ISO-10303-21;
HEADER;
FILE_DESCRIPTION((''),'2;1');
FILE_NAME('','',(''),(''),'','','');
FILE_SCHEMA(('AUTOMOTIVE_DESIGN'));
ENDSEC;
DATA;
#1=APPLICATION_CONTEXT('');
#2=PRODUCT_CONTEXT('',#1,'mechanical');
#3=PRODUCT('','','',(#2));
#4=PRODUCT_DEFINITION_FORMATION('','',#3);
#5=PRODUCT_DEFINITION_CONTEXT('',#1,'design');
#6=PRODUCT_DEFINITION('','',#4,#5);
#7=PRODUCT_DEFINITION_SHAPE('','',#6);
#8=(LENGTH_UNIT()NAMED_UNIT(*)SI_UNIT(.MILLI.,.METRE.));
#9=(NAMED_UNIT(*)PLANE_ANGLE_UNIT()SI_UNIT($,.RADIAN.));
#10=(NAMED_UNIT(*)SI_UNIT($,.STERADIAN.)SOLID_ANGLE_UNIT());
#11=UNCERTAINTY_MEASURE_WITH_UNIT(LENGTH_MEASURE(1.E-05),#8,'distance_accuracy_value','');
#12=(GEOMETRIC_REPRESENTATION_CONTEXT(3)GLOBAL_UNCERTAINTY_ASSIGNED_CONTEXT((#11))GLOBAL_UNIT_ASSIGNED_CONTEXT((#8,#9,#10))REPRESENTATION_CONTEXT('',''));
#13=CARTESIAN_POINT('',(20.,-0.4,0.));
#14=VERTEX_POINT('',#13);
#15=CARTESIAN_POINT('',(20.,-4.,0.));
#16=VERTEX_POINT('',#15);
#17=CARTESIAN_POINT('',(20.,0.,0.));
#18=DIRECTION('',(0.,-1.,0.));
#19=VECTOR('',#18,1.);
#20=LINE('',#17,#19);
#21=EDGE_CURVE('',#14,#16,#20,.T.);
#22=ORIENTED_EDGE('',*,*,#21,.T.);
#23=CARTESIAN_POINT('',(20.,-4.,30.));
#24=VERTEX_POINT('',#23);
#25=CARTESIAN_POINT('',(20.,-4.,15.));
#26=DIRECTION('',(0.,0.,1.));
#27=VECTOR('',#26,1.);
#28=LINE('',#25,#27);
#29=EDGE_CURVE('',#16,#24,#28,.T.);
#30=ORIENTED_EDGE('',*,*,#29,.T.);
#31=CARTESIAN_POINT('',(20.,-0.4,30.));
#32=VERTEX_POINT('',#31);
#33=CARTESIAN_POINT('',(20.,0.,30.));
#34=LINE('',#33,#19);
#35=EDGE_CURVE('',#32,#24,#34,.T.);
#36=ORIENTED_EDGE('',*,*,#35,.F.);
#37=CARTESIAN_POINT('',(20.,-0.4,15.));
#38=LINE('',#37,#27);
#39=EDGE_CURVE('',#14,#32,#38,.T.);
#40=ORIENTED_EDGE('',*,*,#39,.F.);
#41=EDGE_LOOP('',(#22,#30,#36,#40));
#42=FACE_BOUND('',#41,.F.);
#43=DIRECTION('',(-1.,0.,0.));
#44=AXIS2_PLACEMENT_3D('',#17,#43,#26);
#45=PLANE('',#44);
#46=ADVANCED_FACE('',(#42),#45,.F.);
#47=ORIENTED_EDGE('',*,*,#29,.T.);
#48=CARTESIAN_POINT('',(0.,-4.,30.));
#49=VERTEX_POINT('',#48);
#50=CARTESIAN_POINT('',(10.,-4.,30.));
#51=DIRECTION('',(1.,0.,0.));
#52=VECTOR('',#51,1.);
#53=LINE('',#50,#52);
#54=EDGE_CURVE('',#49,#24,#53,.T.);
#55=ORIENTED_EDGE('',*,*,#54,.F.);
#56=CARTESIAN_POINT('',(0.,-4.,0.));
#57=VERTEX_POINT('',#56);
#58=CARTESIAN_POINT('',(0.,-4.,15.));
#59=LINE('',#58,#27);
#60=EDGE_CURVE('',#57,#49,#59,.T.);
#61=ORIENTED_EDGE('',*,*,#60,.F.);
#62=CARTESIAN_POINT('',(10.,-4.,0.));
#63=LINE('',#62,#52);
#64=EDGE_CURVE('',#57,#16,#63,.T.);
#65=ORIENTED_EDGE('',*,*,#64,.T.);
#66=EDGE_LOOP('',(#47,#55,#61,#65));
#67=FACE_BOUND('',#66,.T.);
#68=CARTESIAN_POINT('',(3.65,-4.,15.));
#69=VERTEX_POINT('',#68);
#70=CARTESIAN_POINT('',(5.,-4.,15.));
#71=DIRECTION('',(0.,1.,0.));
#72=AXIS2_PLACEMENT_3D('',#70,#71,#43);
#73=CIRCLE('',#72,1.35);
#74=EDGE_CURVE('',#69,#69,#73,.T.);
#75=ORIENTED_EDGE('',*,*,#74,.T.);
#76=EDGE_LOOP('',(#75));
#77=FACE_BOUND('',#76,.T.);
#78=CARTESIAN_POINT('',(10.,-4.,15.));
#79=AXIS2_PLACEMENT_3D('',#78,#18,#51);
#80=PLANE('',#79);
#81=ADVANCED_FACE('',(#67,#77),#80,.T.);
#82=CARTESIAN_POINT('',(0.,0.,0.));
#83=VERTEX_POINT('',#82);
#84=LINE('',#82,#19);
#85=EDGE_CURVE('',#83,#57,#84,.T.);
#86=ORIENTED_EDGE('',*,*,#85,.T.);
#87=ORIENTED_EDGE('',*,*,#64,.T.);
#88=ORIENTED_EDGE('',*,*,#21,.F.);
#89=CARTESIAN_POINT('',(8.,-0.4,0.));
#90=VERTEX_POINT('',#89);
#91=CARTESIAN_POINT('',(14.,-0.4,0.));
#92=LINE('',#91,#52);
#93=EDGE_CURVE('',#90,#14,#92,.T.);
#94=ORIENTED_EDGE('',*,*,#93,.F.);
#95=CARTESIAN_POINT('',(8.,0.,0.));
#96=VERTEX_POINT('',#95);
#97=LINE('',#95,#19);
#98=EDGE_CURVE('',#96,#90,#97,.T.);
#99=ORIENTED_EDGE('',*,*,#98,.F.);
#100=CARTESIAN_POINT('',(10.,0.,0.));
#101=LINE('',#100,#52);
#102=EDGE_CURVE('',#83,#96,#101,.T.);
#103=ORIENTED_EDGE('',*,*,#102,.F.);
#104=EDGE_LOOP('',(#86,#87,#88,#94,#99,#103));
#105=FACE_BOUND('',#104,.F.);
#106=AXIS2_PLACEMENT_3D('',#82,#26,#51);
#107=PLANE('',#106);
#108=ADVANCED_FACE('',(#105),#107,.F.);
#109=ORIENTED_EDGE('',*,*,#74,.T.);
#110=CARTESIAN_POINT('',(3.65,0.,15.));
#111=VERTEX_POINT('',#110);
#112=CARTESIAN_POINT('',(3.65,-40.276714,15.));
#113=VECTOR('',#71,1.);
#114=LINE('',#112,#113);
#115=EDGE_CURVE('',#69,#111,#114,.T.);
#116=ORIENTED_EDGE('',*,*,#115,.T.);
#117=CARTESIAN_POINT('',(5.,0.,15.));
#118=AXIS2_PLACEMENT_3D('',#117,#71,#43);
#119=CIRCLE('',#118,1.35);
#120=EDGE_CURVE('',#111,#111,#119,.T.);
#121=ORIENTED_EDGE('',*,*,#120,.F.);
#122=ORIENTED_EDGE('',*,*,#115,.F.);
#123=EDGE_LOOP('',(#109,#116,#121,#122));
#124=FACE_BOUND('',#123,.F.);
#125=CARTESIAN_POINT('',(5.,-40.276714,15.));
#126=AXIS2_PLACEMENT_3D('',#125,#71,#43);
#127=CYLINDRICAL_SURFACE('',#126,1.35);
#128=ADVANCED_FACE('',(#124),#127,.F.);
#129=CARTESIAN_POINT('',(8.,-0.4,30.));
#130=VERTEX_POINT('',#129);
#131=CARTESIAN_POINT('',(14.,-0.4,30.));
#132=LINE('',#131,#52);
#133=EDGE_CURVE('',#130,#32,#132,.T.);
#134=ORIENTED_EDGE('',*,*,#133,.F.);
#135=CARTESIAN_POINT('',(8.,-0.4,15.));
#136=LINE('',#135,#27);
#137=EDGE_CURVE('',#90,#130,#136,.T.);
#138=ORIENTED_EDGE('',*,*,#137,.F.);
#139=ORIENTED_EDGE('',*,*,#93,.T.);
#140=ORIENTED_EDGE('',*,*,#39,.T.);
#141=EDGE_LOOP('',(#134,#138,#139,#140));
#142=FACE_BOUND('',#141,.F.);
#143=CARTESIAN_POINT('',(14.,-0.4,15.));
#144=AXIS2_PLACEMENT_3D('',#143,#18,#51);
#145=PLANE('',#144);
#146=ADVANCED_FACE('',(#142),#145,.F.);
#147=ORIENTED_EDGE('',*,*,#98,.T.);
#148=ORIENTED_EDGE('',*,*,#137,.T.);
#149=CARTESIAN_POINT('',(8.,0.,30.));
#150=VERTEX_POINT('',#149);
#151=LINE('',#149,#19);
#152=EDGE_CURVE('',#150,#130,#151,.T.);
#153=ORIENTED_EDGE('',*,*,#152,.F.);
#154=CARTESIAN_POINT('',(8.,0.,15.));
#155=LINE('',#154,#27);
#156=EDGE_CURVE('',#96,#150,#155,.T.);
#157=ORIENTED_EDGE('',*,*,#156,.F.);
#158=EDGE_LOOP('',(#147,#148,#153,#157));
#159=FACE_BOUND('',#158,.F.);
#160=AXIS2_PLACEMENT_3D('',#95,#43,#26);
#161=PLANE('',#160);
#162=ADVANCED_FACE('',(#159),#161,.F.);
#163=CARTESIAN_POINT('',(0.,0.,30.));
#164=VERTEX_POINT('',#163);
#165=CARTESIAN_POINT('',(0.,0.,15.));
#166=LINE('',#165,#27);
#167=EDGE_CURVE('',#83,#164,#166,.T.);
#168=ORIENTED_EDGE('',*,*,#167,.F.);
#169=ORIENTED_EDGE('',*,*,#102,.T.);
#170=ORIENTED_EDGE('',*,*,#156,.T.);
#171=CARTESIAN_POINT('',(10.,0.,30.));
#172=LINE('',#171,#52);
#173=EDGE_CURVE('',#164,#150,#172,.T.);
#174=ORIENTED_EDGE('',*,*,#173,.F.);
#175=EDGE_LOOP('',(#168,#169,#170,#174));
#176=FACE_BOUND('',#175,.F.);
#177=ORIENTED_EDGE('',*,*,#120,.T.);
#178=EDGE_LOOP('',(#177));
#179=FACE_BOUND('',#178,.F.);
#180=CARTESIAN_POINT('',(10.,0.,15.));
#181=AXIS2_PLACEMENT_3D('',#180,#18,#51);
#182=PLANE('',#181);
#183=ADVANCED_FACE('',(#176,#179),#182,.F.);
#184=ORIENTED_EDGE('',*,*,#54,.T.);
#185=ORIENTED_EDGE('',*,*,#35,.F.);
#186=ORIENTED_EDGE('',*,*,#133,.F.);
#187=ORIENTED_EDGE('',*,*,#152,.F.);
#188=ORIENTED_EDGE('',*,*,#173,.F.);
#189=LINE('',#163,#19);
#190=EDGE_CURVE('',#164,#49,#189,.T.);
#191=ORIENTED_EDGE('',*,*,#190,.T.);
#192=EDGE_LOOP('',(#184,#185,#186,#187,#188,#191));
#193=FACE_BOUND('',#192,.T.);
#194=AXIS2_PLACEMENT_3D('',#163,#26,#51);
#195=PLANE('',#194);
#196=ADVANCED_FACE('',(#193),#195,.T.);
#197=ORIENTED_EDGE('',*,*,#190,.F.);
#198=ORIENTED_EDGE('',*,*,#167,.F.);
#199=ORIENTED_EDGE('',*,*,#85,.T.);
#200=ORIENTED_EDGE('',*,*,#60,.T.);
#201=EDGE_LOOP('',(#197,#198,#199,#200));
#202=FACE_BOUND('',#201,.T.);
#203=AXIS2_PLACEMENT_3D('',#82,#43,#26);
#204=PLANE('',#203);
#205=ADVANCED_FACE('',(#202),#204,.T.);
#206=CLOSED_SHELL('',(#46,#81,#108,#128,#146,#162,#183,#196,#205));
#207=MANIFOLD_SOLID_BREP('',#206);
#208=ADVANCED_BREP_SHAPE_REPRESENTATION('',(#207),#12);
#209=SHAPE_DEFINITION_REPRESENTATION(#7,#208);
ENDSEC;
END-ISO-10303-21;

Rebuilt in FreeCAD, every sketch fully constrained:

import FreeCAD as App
import Part
import Sketcher

V = App.Vector
Q = App.Units.Quantity


def add_polygon(sketch, points):
    """Adds a closed chain of lines whose ends are joined by coincident constraints."""
    first, n = sketch.GeometryCount, len(points)
    for a, b in zip(points, points[1:] + points[:1]):
        sketch.addGeometry(Part.LineSegment(App.Vector(*a, 0), App.Vector(*b, 0)), False)
    for i in range(n):
        sketch.addConstraint(Sketcher.Constraint("Coincident", first + i, 2, first + (i + 1) % n, 1))

doc = App.newDocument("Part")
params = doc.addObject("Spreadsheet::Sheet", "Params")
for row, (alias, value) in enumerate([
    ("sketch1_width", "20 mm"),
    ("sketch1_height", "30 mm"),
    ("pad1_length", "4 mm"),
    ("sketch2_width", "12 mm"),
    ("sketch2_height", "30 mm"),
    ("pocket1_length", "0.4 mm"),
    ("sketch3_diameter", "2.7 mm"),
    ("hole_diameter", "2.7 mm"),
], start=1):
    params.set(f"A{row}", alias)
    params.set(f"B{row}", "=" + value)
    params.setAlias(f"B{row}", alias)

body = doc.addObject("PartDesign::Body", "Body")

# Sketch on XZ plane
sketch1 = doc.addObject("Sketcher::SketchObject", "Sketch")
body.addObject(sketch1)
sketch1.AttachmentSupport = (doc.XZ_Plane, [""])
sketch1.MapMode = "FlatFace"
add_polygon(sketch1, [(0, 30), (0, 0), (20, 0), (20, 30)])  # lines 0-3
sketch1.addConstraint([
    Sketcher.Constraint("Vertical", 0),
    Sketcher.Constraint("Horizontal", 1),
    Sketcher.Constraint("Vertical", 2),
    Sketcher.Constraint("Horizontal", 3),
    Sketcher.Constraint("Coincident", 0, 2, -1, 1),
    Sketcher.Constraint("DistanceX", 1, 1, 1, 2, Q("20 mm")),
    Sketcher.Constraint("DistanceY", 0, 2, 0, 1, Q("30 mm")),
])
sketch1.setExpression("Constraints[9]", "Params.sketch1_width")
sketch1.setExpression("Constraints[10]", "Params.sketch1_height")
pad1 = doc.addObject("PartDesign::Pad", "Pad")
body.addObject(pad1)
pad1.Profile = sketch1
pad1.setExpression("Length", "Params.pad1_length")

# Sketch on XZ plane
sketch2 = doc.addObject("Sketcher::SketchObject", "Sketch001")
body.addObject(sketch2)
sketch2.AttachmentSupport = (doc.XZ_Plane, [""])
sketch2.MapMode = "FlatFace"
add_polygon(sketch2, [(8, 30), (8, 0), (20, 0), (20, 30)])  # lines 0-3
sketch2.addConstraint([
    Sketcher.Constraint("Vertical", 0),
    Sketcher.Constraint("Horizontal", 1),
    Sketcher.Constraint("Vertical", 2),
    Sketcher.Constraint("Horizontal", 3),
    Sketcher.Constraint("PointOnObject", 0, 2, -1),
    Sketcher.Constraint("DistanceX", 1, 1, 1, 2, Q("12 mm")),
    Sketcher.Constraint("DistanceY", 0, 2, 0, 1, Q("30 mm")),
    Sketcher.Constraint("DistanceX", -1, 1, 0, 2, Q("8 mm")),
])
sketch2.setExpression("Constraints[9]", "Params.sketch2_width")
sketch2.setExpression("Constraints[10]", "Params.sketch2_height")
pocket1 = doc.addObject("PartDesign::Pocket", "Pocket")
body.addObject(pocket1)
pocket1.Profile = sketch2
pocket1.setExpression("Length", "Params.pocket1_length")
pocket1.Reversed = True

# Sketch on XZ plane
sketch3 = doc.addObject("Sketcher::SketchObject", "Sketch002")
body.addObject(sketch3)
sketch3.AttachmentSupport = (doc.XZ_Plane, [""])
sketch3.MapMode = "FlatFace"
sketch3.AttachmentOffset = App.Placement(V(0, 0, 4), App.Rotation())
sketch3.addGeometry(Part.Circle(V(5, 15, 0), V(0, 0, 1), 1.4), False)
sketch3.addConstraint([
    Sketcher.Constraint("Diameter", 0, Q("2.7 mm")),
    Sketcher.Constraint("DistanceX", -1, 1, 0, 3, Q("5 mm")),
    Sketcher.Constraint("DistanceY", -1, 1, 0, 3, Q("15 mm")),
])
sketch3.setExpression("Constraints[0]", "Params.sketch3_diameter")
doc.recompute()
hole = doc.addObject("PartDesign::Hole", "Hole")
body.addObject(hole)
hole.Profile = sketch3
hole.ThreadType = "None"
hole.setExpression("Diameter", "Params.hole_diameter")
hole.DepthType = "ThroughAll"

doc.recompute()
